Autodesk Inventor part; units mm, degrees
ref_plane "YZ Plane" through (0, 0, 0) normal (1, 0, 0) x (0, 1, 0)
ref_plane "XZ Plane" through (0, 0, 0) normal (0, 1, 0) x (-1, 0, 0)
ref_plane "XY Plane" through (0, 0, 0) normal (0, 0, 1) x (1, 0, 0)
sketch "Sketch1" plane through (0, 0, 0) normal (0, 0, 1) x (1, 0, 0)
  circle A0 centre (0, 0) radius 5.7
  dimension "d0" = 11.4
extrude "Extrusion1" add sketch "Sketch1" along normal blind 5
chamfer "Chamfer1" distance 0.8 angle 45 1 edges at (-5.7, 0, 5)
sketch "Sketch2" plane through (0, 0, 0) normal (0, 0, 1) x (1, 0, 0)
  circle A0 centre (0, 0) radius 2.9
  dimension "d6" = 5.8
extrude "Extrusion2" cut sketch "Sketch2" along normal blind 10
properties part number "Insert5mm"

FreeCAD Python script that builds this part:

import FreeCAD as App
import Part
import Sketcher

V = App.Vector


def edges_at(feature, points):
    """Names of the edges that pass closest to the given points."""
    edges = feature.Shape.Edges
    near = lambda p: min(range(len(edges)), key=lambda i: edges[i].distToShape(Part.Vertex(*p))[0])
    return sorted({f"Edge{near(p) + 1}" for p in points})

doc = App.newDocument("Part")
body = doc.addObject("PartDesign::Body", "Body")

# Sketch on XY plane
sketch1 = doc.addObject("Sketcher::SketchObject", "Sketch")
body.addObject(sketch1)
sketch1.AttachmentSupport = (doc.XY_Plane, [""])
sketch1.MapMode = "FlatFace"
sketch1.addGeometry(Part.Circle(V(0, 0, 0), V(0, 0, 1), 6), False)
sketch1.addConstraint([
    Sketcher.Constraint("Coincident", 0, 3, -1, 1),
    Sketcher.Constraint("Diameter", 0, 11.4),
])
pad1 = doc.addObject("PartDesign::Pad", "Pad")
body.addObject(pad1)
pad1.Profile = sketch1
pad1.Length = 5
doc.recompute()

chamfer = doc.addObject("PartDesign::Chamfer", "Chamfer")
body.addObject(chamfer)
chamfer.Base = (pad1, edges_at(pad1, [(-5.7, 0, 5)]))
chamfer.Size = 0.8

# Sketch on XY plane
sketch2 = doc.addObject("Sketcher::SketchObject", "Sketch001")
body.addObject(sketch2)
sketch2.AttachmentSupport = (doc.XY_Plane, [""])
sketch2.MapMode = "FlatFace"
sketch2.addGeometry(Part.Circle(V(0, 0, 0), V(0, 0, 1), 2.9), False)
sketch2.addConstraint([
    Sketcher.Constraint("Coincident", 0, 3, -1, 1),
    Sketcher.Constraint("Diameter", 0, 5.8),
])
pocket1 = doc.addObject("PartDesign::Pocket", "Pocket")
body.addObject(pocket1)
pocket1.Profile = sketch2
pocket1.Length = 10
pocket1.Reversed = True

doc.recompute()
